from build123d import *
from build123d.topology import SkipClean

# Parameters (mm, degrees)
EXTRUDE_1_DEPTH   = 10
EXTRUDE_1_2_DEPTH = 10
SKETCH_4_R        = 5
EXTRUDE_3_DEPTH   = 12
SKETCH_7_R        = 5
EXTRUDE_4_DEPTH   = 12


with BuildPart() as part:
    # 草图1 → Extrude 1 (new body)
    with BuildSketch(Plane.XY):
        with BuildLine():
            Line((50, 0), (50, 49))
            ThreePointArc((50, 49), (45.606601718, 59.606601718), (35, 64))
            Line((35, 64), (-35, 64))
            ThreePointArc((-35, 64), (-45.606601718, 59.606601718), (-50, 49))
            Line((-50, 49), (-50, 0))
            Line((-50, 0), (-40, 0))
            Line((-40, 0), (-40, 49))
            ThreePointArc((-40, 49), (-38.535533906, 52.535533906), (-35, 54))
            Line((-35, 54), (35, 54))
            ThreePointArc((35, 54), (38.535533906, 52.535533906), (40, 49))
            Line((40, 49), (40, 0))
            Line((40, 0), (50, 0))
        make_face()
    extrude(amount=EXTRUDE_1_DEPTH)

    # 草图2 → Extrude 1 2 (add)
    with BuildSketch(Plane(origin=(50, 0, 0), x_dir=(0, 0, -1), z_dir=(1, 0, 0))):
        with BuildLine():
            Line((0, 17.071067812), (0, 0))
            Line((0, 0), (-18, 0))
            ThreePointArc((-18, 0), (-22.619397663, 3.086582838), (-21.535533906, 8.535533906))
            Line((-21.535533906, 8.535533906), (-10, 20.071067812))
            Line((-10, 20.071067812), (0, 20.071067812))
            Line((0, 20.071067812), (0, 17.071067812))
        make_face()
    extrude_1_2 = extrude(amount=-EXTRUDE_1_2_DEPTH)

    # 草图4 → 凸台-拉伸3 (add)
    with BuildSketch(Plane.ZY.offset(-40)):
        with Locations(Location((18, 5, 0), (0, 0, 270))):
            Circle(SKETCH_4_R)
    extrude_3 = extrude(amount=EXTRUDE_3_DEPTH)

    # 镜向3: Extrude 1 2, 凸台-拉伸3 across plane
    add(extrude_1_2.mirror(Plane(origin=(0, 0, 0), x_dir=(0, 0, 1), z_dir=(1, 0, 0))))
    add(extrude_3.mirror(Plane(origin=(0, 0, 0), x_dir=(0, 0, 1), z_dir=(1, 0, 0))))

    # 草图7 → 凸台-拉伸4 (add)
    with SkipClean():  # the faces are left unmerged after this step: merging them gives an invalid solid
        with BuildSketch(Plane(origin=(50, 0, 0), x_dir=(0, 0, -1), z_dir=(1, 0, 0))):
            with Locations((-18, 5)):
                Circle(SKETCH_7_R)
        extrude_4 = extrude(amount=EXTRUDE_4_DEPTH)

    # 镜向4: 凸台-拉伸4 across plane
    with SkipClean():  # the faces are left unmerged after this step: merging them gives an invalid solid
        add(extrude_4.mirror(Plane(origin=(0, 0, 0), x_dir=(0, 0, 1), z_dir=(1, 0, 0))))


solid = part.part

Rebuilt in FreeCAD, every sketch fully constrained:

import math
import FreeCAD as App
import Part
import Sketcher

V = App.Vector
Q = App.Units.Quantity

doc = App.newDocument("Part")
body = doc.addObject("PartDesign::Body", "Body")

sketch1 = body.newObject("Sketcher::SketchObject", "Sketch")
sketch1.AttachmentSupport = (doc.getObject("XY_Plane"), [""])
sketch1.MapMode = "FlatFace"
sketch1.addGeometry([
    Part.LineSegment(V(50, 0, 0), V(50, 49, 0)),
    Part.ArcOfCircle(Part.Circle(V(35, 49, 0), V(0, 0, 1), 15), math.radians(0), math.radians(90)),
    Part.LineSegment(V(35, 64, 0), V(-35, 64, 0)),
    Part.ArcOfCircle(Part.Circle(V(-35, 49, 0), V(0, 0, 1), 15), math.radians(90), math.radians(180)),
    Part.LineSegment(V(-50, 49, 0), V(-50, 0, 0)),
    Part.LineSegment(V(-50, 0, 0), V(-40, 0, 0)),
    Part.LineSegment(V(-40, 0, 0), V(-40, 49, 0)),
    Part.ArcOfCircle(Part.Circle(V(-35, 49, 0), V(0, 0, 1), 5), math.radians(90), math.radians(180)),
    Part.LineSegment(V(-35, 54, 0), V(35, 54, 0)),
    Part.ArcOfCircle(Part.Circle(V(35, 49, 0), V(0, 0, 1), 5), math.radians(0), math.radians(90)),
    Part.LineSegment(V(40, 49, 0), V(40, 0, 0)),
    Part.LineSegment(V(40, 0, 0), V(50, 0, 0)),
], False)
sketch1.addConstraint([
    Sketcher.Constraint("Tangent", 0, 2, 1, 1),
    Sketcher.Constraint("Tangent", 1, 2, 2, 1),
    Sketcher.Constraint("Tangent", 2, 2, 3, 1),
    Sketcher.Constraint("Tangent", 3, 2, 4, 1),
    Sketcher.Constraint("Coincident", 4, 2, 5, 1),
    Sketcher.Constraint("Coincident", 5, 2, 6, 1),
    Sketcher.Constraint("Tangent", 6, 2, 7, 2),
    Sketcher.Constraint("Tangent", 7, 1, 8, 1),
    Sketcher.Constraint("Tangent", 8, 2, 9, 2),
    Sketcher.Constraint("Tangent", 9, 1, 10, 1),
    Sketcher.Constraint("Coincident", 10, 2, 11, 1),
    Sketcher.Constraint("Coincident", 11, 2, 0, 1),
    Sketcher.Constraint("Vertical", 0),
    Sketcher.Constraint("Horizontal", 2),
    Sketcher.Constraint("Vertical", 4),
    Sketcher.Constraint("Horizontal", 5),
    Sketcher.Constraint("Vertical", 6),
    Sketcher.Constraint("Horizontal", 8),
    Sketcher.Constraint("Vertical", 10),
    Sketcher.Constraint("Horizontal", 11),
    Sketcher.Constraint("Coincident", 7, 3, 3, 3),
    Sketcher.Constraint("Coincident", 9, 3, 1, 3),
    Sketcher.Constraint("Equal", 1, 3),
    Sketcher.Constraint("Symmetric", 5, 2, 10, 2, -1, 1),
    Sketcher.Constraint("PointOnObject", 4, 2, -1),
    Sketcher.Constraint("Radius", 1, Q("15 mm")),
    Sketcher.Constraint("Radius", 7, Q("5 mm")),
    Sketcher.Constraint("DistanceX", 2, 2, 2, 1, Q("70 mm")),
    Sketcher.Constraint("DistanceY", 0, 1, 0, 2, Q("49 mm")),
])
pad1 = body.newObject("PartDesign::Pad", "Pad")
pad1.Profile = sketch1
pad1.Length = 10

sketch2 = body.newObject("Sketcher::SketchObject", "Sketch001")
sketch2.AttachmentSupport = (doc.getObject("YZ_Plane"), [""])
sketch2.MapMode = "FlatFace"
sketch2.AttachmentOffset = App.Placement(V(0, 0, 50), App.Rotation())
sketch2.addGeometry([
    Part.LineSegment(V(0, 18, 0), V(0, 0, 0)),
    Part.LineSegment(V(0, 0, 0), V(20.071068, 0, 0)),
    Part.LineSegment(V(20.071068, 0, 0), V(20.071068, 10, 0)),
    Part.LineSegment(V(20.071068, 10, 0), V(8.535534, 21.535534, 0)),
    Part.ArcOfCircle(Part.Circle(V(5, 18, 0), V(0, 0, 1), 5), math.radians(45), math.radians(180)),
], False)
sketch2.addConstraint([
    Sketcher.Constraint("Coincident", 0, 2, 1, 1),
    Sketcher.Constraint("Coincident", 1, 2, 2, 1),
    Sketcher.Constraint("Coincident", 2, 2, 3, 1),
    Sketcher.Constraint("Tangent", 3, 2, 4, 1),
    Sketcher.Constraint("Tangent", 4, 2, 0, 1),
    Sketcher.Constraint("Vertical", 0),
    Sketcher.Constraint("Horizontal", 1),
    Sketcher.Constraint("Vertical", 2),
    Sketcher.Constraint("Coincident", 0, 2, -1, 1),
    Sketcher.Constraint("Radius", 4, Q("5 mm")),
    Sketcher.Constraint("DistanceY", 0, 2, 0, 1, Q("18 mm")),
    Sketcher.Constraint("DistanceY", 2, 1, 2, 2, Q("10 mm")),
    Sketcher.Constraint("Angle", 3, Q("135 deg")),
])
pad2 = body.newObject("PartDesign::Pad", "Pad001")
pad2.Profile = sketch2
pad2.Length = 10
pad2.Reversed = True

sketch3 = body.newObject("Sketcher::SketchObject", "Sketch002")
sketch3.AttachmentSupport = (doc.getObject("YZ_Plane"), [""])
sketch3.MapMode = "FlatFace"
sketch3.AttachmentOffset = App.Placement(V(0, 0, 40), App.Rotation())
sketch3.addGeometry(Part.Circle(V(5, 18, 0), V(0, 0, 1), 5), False)
sketch3.addConstraint([
    Sketcher.Constraint("Diameter", 0, Q("10 mm")),
    Sketcher.Constraint("DistanceX", -1, 1, 0, 3, Q("5 mm")),
    Sketcher.Constraint("DistanceY", -1, 1, 0, 3, Q("18 mm")),
])
pad3 = body.newObject("PartDesign::Pad", "Pad002")
pad3.Profile = sketch3
pad3.Length = 12
pad3.Reversed = True
doc.recompute()

mirrored = body.newObject("PartDesign::Mirrored", "Mirrored")
mirrored.Originals = [pad2, pad3]
mirrored.MirrorPlane = (doc.getObject("YZ_Plane"), [""])
body.Tip = mirrored

sketch4 = body.newObject("Sketcher::SketchObject", "Sketch003")
sketch4.AttachmentSupport = (doc.getObject("YZ_Plane"), [""])
sketch4.MapMode = "FlatFace"
sketch4.AttachmentOffset = App.Placement(V(0, 0, 50), App.Rotation())
sketch4.addGeometry(Part.Circle(V(5, 18, 0), V(0, 0, 1), 5), False)
sketch4.addConstraint([
    Sketcher.Constraint("Diameter", 0, Q("10 mm")),
    Sketcher.Constraint("DistanceX", -1, 1, 0, 3, Q("5 mm")),
    Sketcher.Constraint("DistanceY", -1, 1, 0, 3, Q("18 mm")),
])
pad4 = body.newObject("PartDesign::Pad", "Pad003")
pad4.Profile = sketch4
pad4.Length = 12
doc.recompute()

mirrored2 = body.newObject("PartDesign::Mirrored", "Mirrored001")
mirrored2.Originals = [pad4]
mirrored2.MirrorPlane = (doc.getObject("YZ_Plane"), [""])
body.Tip = mirrored2

doc.recompute()
